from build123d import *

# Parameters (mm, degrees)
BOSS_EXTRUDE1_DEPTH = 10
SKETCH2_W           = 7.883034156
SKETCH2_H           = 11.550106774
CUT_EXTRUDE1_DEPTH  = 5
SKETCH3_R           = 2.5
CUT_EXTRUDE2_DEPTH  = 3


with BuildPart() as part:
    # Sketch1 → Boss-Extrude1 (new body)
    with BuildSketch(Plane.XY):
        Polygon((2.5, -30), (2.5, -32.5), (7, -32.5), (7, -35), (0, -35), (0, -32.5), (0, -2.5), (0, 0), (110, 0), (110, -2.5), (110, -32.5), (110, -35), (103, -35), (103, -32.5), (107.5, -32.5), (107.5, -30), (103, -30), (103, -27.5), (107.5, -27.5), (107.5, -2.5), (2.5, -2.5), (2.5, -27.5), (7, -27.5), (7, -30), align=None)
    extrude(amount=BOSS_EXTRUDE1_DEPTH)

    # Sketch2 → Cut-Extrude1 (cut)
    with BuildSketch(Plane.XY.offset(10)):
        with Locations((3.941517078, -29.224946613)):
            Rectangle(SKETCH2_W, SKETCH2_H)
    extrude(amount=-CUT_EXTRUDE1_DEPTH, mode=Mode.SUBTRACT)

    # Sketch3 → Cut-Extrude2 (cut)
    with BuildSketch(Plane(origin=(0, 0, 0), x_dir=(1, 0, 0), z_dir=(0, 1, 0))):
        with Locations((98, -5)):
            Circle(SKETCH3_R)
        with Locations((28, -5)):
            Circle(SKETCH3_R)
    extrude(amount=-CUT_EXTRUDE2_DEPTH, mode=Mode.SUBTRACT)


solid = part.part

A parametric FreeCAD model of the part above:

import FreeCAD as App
import Part
import Sketcher

V = App.Vector


def add_polygon(sketch, points):
    """Adds a closed chain of lines whose ends are joined by coincident constraints."""
    first, n = sketch.GeometryCount, len(points)
    for a, b in zip(points, points[1:] + points[:1]):
        sketch.addGeometry(Part.LineSegment(App.Vector(*a, 0), App.Vector(*b, 0)), False)
    for i in range(n):
        sketch.addConstraint(Sketcher.Constraint("Coincident", first + i, 2, first + (i + 1) % n, 1))

doc = App.newDocument("Part")
body = doc.addObject("PartDesign::Body", "Body")

sketch1 = doc.addObject("Sketcher::SketchObject", "Sketch")
body.addObject(sketch1)
sketch1.AttachmentSupport = (doc.XY_Plane, [""])
sketch1.MapMode = "FlatFace"
add_polygon(sketch1, [(2.5, -32.5), (2.5, -30), (7, -30), (7, -27.5), (2.5, -27.5), (2.5, -2.5), (107.5, -2.5), (107.5, -27.5), (103, -27.5), (103, -30), (107.5, -30), (107.5, -32.5), (103, -32.5), (103, -35), (110, -35), (110, 0), (0, 0), (0, -35), (7, -35), (7, -32.5)])
sketch1.addConstraint([
    Sketcher.Constraint("Vertical", 0),
    Sketcher.Constraint("Horizontal", 1),
    Sketcher.Constraint("Vertical", 2),
    Sketcher.Constraint("Horizontal", 3),
    Sketcher.Constraint("Vertical", 4),
    Sketcher.Constraint("Horizontal", 5),
    Sketcher.Constraint("Vertical", 6),
    Sketcher.Constraint("Horizontal", 7),
    Sketcher.Constraint("Vertical", 8),
    Sketcher.Constraint("Horizontal", 9),
    Sketcher.Constraint("Vertical", 10),
    Sketcher.Constraint("Horizontal", 11),
    Sketcher.Constraint("Vertical", 12),
    Sketcher.Constraint("Horizontal", 13),
    Sketcher.Constraint("Vertical", 14),
    Sketcher.Constraint("Horizontal", 15),
    Sketcher.Constraint("Vertical", 16),
    Sketcher.Constraint("Horizontal", 17),
    Sketcher.Constraint("Vertical", 18),
    Sketcher.Constraint("Horizontal", 19),
    Sketcher.Constraint("Coincident", 15, 2, -1, 1),
    Sketcher.Constraint("Horizontal", 3, 2, 6, 2),
    Sketcher.Constraint("Horizontal", 1, 2, 8, 2),
    Sketcher.Constraint("Horizontal", 13, 2, 16, 2),
    Sketcher.Constraint("Horizontal", 11, 2, 18, 2),
    Sketcher.Constraint("Vertical", 0, 2, 3, 2),
    Sketcher.Constraint("Vertical", 6, 2, 9, 2),
    Sketcher.Constraint("Vertical", 8, 2, 11, 2),
    Sketcher.Constraint("Vertical", 2, 2, 17, 2),
    Sketcher.Constraint("Equal", 3, 7),
    Sketcher.Constraint("Equal", 13, 17),
    Sketcher.Constraint("Equal", 0, 2),
    Sketcher.Constraint("Equal", 10, 12),
    Sketcher.Constraint("DistanceX", 5, 1, 5, 2, 105.0),
    Sketcher.Constraint("DistanceX", 13, 1, 13, 2, 7.0),
    Sketcher.Constraint("DistanceX", 15, 2, 15, 1, 110.0),
    Sketcher.Constraint("DistanceY", 4, 1, 4, 2, 25.0),
    Sketcher.Constraint("DistanceY", 14, 1, 14, 2, 35.0),
    Sketcher.Constraint("DistanceY", 0, 1, 0, 2, 2.5),
])
pad1 = doc.addObject("PartDesign::Pad", "Pad")
body.addObject(pad1)
pad1.Profile = sketch1
pad1.Length = 10

sketch2 = doc.addObject("Sketcher::SketchObject", "Sketch001")
body.addObject(sketch2)
sketch2.AttachmentSupport = (doc.XY_Plane, [""])
sketch2.MapMode = "FlatFace"
sketch2.AttachmentOffset = App.Placement(V(0, 0, 10), App.Rotation())
add_polygon(sketch2, [(0, -23), (0, -35), (8, -35), (8, -23)])
sketch2.addConstraint([
    Sketcher.Constraint("Vertical", 0),
    Sketcher.Constraint("Horizontal", 1),
    Sketcher.Constraint("Vertical", 2),
    Sketcher.Constraint("Horizontal", 3),
    Sketcher.Constraint("PointOnObject", 0, 2, -2),
    Sketcher.Constraint("DistanceY", 0, 2, -1, 1, 35.0),
    Sketcher.Constraint("DistanceX", 1, 1, 1, 2, 7.883034),
    Sketcher.Constraint("DistanceY", 0, 2, 0, 1, 11.550107),
])
pocket1 = doc.addObject("PartDesign::Pocket", "Pocket")
body.addObject(pocket1)
pocket1.Profile = sketch2
pocket1.Length = 5

sketch3 = doc.addObject("Sketcher::SketchObject", "Sketch002")
body.addObject(sketch3)
sketch3.AttachmentSupport = (doc.XZ_Plane, [""])
sketch3.MapMode = "FlatFace"
sketch3.addGeometry([
    Part.Circle(V(98, 5, 0), V(0, 0, 1), 2.5),
    Part.Circle(V(28, 5, 0), V(0, 0, 1), 2.5),
], False)
sketch3.addConstraint([
    Sketcher.Constraint("Equal", 0, 1),
    Sketcher.Constraint("Horizontal", 0, 3, 1, 3),
    Sketcher.Constraint("Diameter", 0, 5.0),
    Sketcher.Constraint("DistanceX", -1, 1, 0, 3, 98.0),
    Sketcher.Constraint("DistanceY", -1, 1, 0, 3, 5.0),
    Sketcher.Constraint("DistanceX", -1, 1, 1, 3, 28.0),
])
pocket2 = doc.addObject("PartDesign::Pocket", "Pocket001")
body.addObject(pocket2)
pocket2.Profile = sketch3
pocket2.Length = 3
pocket2.Reversed = True

doc.recompute()
